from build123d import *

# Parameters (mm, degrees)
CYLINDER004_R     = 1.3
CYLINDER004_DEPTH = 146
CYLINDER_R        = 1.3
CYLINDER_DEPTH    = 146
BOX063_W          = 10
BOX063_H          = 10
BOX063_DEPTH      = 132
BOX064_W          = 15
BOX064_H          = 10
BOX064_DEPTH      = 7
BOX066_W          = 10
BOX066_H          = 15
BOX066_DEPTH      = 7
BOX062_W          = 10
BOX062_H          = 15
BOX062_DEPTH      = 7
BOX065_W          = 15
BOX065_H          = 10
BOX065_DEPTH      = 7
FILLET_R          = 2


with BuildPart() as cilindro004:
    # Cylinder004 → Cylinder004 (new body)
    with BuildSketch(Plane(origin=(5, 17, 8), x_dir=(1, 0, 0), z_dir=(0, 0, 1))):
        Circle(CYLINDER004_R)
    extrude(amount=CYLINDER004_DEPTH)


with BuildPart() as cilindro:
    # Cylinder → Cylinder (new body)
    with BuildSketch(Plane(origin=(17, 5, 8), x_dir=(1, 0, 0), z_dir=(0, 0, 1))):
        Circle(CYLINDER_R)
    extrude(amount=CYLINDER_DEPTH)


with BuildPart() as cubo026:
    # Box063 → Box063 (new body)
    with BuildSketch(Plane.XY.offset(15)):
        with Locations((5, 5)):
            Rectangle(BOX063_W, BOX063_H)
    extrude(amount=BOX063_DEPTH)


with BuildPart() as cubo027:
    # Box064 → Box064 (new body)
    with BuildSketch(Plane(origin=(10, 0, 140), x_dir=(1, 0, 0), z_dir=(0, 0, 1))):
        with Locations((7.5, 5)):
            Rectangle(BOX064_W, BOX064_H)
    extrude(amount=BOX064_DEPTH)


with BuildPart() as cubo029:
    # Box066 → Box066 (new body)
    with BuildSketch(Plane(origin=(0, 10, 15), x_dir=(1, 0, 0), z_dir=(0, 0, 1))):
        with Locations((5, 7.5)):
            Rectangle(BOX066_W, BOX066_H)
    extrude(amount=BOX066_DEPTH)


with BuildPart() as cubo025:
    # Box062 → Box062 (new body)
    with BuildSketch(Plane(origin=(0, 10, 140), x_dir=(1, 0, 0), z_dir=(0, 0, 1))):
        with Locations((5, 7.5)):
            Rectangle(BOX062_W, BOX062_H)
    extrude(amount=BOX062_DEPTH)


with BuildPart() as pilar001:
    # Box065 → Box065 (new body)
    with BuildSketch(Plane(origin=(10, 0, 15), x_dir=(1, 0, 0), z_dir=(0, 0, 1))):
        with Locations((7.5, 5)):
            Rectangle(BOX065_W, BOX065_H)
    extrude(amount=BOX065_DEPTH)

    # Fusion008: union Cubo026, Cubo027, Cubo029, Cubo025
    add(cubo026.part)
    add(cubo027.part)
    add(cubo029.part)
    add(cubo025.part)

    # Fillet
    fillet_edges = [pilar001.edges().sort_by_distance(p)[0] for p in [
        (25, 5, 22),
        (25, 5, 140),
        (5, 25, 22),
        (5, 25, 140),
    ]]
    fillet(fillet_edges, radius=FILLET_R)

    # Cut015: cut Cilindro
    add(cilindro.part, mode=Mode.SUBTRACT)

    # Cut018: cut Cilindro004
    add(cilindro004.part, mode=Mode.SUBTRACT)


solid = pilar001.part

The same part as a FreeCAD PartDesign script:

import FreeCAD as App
import Part
import Sketcher

V = App.Vector


def edges_at(feature, points):
    """Names of the edges that pass closest to the given points."""
    edges = feature.Shape.Edges
    near = lambda p: min(range(len(edges)), key=lambda i: edges[i].distToShape(Part.Vertex(*p))[0])
    return sorted({f"Edge{near(p) + 1}" for p in points})

doc = App.newDocument("Part")
body = doc.addObject("PartDesign::Body", "Body")

sketch1 = body.newObject("Sketcher::SketchObject", "Sketch")
sketch1.AttachmentSupport = (doc.getObject("XY_Plane"), [""])
sketch1.MapMode = "FlatFace"
sketch1.AttachmentOffset = App.Placement(V(0, 0, 8), App.Rotation())
sketch1.addGeometry(Part.Circle(V(5, 17, 0), V(0, 0, 1), 1.3), False)
sketch1.addConstraint(Sketcher.Constraint("Diameter", 0, 2.6))
sketch1.addConstraint(Sketcher.Constraint("DistanceX", -1, 1, 0, 3, 5.0))
sketch1.addConstraint(Sketcher.Constraint("DistanceY", -1, 1, 0, 3, 17.0))
pad1 = body.newObject("PartDesign::Pad", "Pad")
pad1.Profile = sketch1
pad1.Length = 146
body2 = doc.addObject("PartDesign::Body", "Body001")

sketch2 = body2.newObject("Sketcher::SketchObject", "Sketch001")
sketch2.AttachmentSupport = (doc.getObject("XY_Plane001"), [""])
sketch2.MapMode = "FlatFace"
sketch2.AttachmentOffset = App.Placement(V(0, 0, 8), App.Rotation())
sketch2.addGeometry(Part.Circle(V(17, 5, 0), V(0, 0, 1), 1.3), False)
sketch2.addConstraint(Sketcher.Constraint("Diameter", 0, 2.6))
sketch2.addConstraint(Sketcher.Constraint("DistanceX", -1, 1, 0, 3, 17.0))
sketch2.addConstraint(Sketcher.Constraint("DistanceY", -1, 1, 0, 3, 5.0))
pad2 = body2.newObject("PartDesign::Pad", "Pad001")
pad2.Profile = sketch2
pad2.Length = 146
body3 = doc.addObject("PartDesign::Body", "Body002")

sketch3 = body3.newObject("Sketcher::SketchObject", "Sketch002")
sketch3.AttachmentSupport = (doc.getObject("XY_Plane002"), [""])
sketch3.MapMode = "FlatFace"
sketch3.AttachmentOffset = App.Placement(V(0, 0, 15), App.Rotation())
sketch3.addGeometry(Part.LineSegment(V(0, 10, 0), V(0, 0, 0)), False)
sketch3.addGeometry(Part.LineSegment(V(0, 0, 0), V(10, 0, 0)), False)
sketch3.addGeometry(Part.LineSegment(V(10, 0, 0), V(10, 10, 0)), False)
sketch3.addGeometry(Part.LineSegment(V(10, 10, 0), V(0, 10, 0)), False)
sketch3.addConstraint(Sketcher.Constraint("Coincident", 0, 2, 1, 1))
sketch3.addConstraint(Sketcher.Constraint("Coincident", 1, 2, 2, 1))
sketch3.addConstraint(Sketcher.Constraint("Coincident", 2, 2, 3, 1))
sketch3.addConstraint(Sketcher.Constraint("Coincident", 3, 2, 0, 1))
sketch3.addConstraint(Sketcher.Constraint("Vertical", 0))
sketch3.addConstraint(Sketcher.Constraint("Horizontal", 1))
sketch3.addConstraint(Sketcher.Constraint("Vertical", 2))
sketch3.addConstraint(Sketcher.Constraint("Horizontal", 3))
sketch3.addConstraint(Sketcher.Constraint("Coincident", 0, 2, -1, 1))
sketch3.addConstraint(Sketcher.Constraint("Equal", 3, 0))
sketch3.addConstraint(Sketcher.Constraint("DistanceX", 1, 1, 1, 2, 10.0))
pad3 = body3.newObject("PartDesign::Pad", "Pad002")
pad3.Profile = sketch3
pad3.Length = 132
body4 = doc.addObject("PartDesign::Body", "Body003")

sketch4 = body4.newObject("Sketcher::SketchObject", "Sketch003")
sketch4.AttachmentSupport = (doc.getObject("XY_Plane003"), [""])
sketch4.MapMode = "FlatFace"
sketch4.AttachmentOffset = App.Placement(V(0, 0, 140), App.Rotation())
sketch4.addGeometry(Part.LineSegment(V(10, 10, 0), V(10, 0, 0)), False)
sketch4.addGeometry(Part.LineSegment(V(10, 0, 0), V(25, 0, 0)), False)
sketch4.addGeometry(Part.LineSegment(V(25, 0, 0), V(25, 10, 0)), False)
sketch4.addGeometry(Part.LineSegment(V(25, 10, 0), V(10, 10, 0)), False)
sketch4.addConstraint(Sketcher.Constraint("Coincident", 0, 2, 1, 1))
sketch4.addConstraint(Sketcher.Constraint("Coincident", 1, 2, 2, 1))
sketch4.addConstraint(Sketcher.Constraint("Coincident", 2, 2, 3, 1))
sketch4.addConstraint(Sketcher.Constraint("Coincident", 3, 2, 0, 1))
sketch4.addConstraint(Sketcher.Constraint("Vertical", 0))
sketch4.addConstraint(Sketcher.Constraint("Horizontal", 1))
sketch4.addConstraint(Sketcher.Constraint("Vertical", 2))
sketch4.addConstraint(Sketcher.Constraint("Horizontal", 3))
sketch4.addConstraint(Sketcher.Constraint("PointOnObject", 0, 2, -1))
sketch4.addConstraint(Sketcher.Constraint("DistanceX", 1, 1, 1, 2, 15.0))
sketch4.addConstraint(Sketcher.Constraint("DistanceY", 0, 2, 0, 1, 10.0))
sketch4.addConstraint(Sketcher.Constraint("DistanceX", -1, 1, 0, 2, 10.0))
pad4 = body4.newObject("PartDesign::Pad", "Pad003")
pad4.Profile = sketch4
pad4.Length = 7
body5 = doc.addObject("PartDesign::Body", "Body004")

sketch5 = body5.newObject("Sketcher::SketchObject", "Sketch004")
sketch5.AttachmentSupport = (doc.getObject("XY_Plane004"), [""])
sketch5.MapMode = "FlatFace"
sketch5.AttachmentOffset = App.Placement(V(0, 0, 15), App.Rotation())
sketch5.addGeometry(Part.LineSegment(V(0, 25, 0), V(0, 10, 0)), False)
sketch5.addGeometry(Part.LineSegment(V(0, 10, 0), V(10, 10, 0)), False)
sketch5.addGeometry(Part.LineSegment(V(10, 10, 0), V(10, 25, 0)), False)
sketch5.addGeometry(Part.LineSegment(V(10, 25, 0), V(0, 25, 0)), False)
sketch5.addConstraint(Sketcher.Constraint("Coincident", 0, 2, 1, 1))
sketch5.addConstraint(Sketcher.Constraint("Coincident", 1, 2, 2, 1))
sketch5.addConstraint(Sketcher.Constraint("Coincident", 2, 2, 3, 1))
sketch5.addConstraint(Sketcher.Constraint("Coincident", 3, 2, 0, 1))
sketch5.addConstraint(Sketcher.Constraint("Vertical", 0))
sketch5.addConstraint(Sketcher.Constraint("Horizontal", 1))
sketch5.addConstraint(Sketcher.Constraint("Vertical", 2))
sketch5.addConstraint(Sketcher.Constraint("Horizontal", 3))
sketch5.addConstraint(Sketcher.Constraint("PointOnObject", 0, 2, -2))
sketch5.addConstraint(Sketcher.Constraint("DistanceX", 1, 1, 1, 2, 10.0))
sketch5.addConstraint(Sketcher.Constraint("DistanceY", 0, 2, 0, 1, 15.0))
sketch5.addConstraint(Sketcher.Constraint("DistanceY", -1, 1, 0, 2, 10.0))
pad5 = body5.newObject("PartDesign::Pad", "Pad004")
pad5.Profile = sketch5
pad5.Length = 7
body6 = doc.addObject("PartDesign::Body", "Body005")

sketch6 = body6.newObject("Sketcher::SketchObject", "Sketch005")
sketch6.AttachmentSupport = (doc.getObject("XY_Plane005"), [""])
sketch6.MapMode = "FlatFace"
sketch6.AttachmentOffset = App.Placement(V(0, 0, 140), App.Rotation())
sketch6.addGeometry(Part.LineSegment(V(0, 25, 0), V(0, 10, 0)), False)
sketch6.addGeometry(Part.LineSegment(V(0, 10, 0), V(10, 10, 0)), False)
sketch6.addGeometry(Part.LineSegment(V(10, 10, 0), V(10, 25, 0)), False)
sketch6.addGeometry(Part.LineSegment(V(10, 25, 0), V(0, 25, 0)), False)
sketch6.addConstraint(Sketcher.Constraint("Coincident", 0, 2, 1, 1))
sketch6.addConstraint(Sketcher.Constraint("Coincident", 1, 2, 2, 1))
sketch6.addConstraint(Sketcher.Constraint("Coincident", 2, 2, 3, 1))
sketch6.addConstraint(Sketcher.Constraint("Coincident", 3, 2, 0, 1))
sketch6.addConstraint(Sketcher.Constraint("Vertical", 0))
sketch6.addConstraint(Sketcher.Constraint("Horizontal", 1))
sketch6.addConstraint(Sketcher.Constraint("Vertical", 2))
sketch6.addConstraint(Sketcher.Constraint("Horizontal", 3))
sketch6.addConstraint(Sketcher.Constraint("PointOnObject", 0, 2, -2))
sketch6.addConstraint(Sketcher.Constraint("DistanceX", 1, 1, 1, 2, 10.0))
sketch6.addConstraint(Sketcher.Constraint("DistanceY", 0, 2, 0, 1, 15.0))
sketch6.addConstraint(Sketcher.Constraint("DistanceY", -1, 1, 0, 2, 10.0))
pad6 = body6.newObject("PartDesign::Pad", "Pad005")
pad6.Profile = sketch6
pad6.Length = 7
body7 = doc.addObject("PartDesign::Body", "Body006")

sketch7 = body7.newObject("Sketcher::SketchObject", "Sketch006")
sketch7.AttachmentSupport = (doc.getObject("XY_Plane006"), [""])
sketch7.MapMode = "FlatFace"
sketch7.AttachmentOffset = App.Placement(V(0, 0, 15), App.Rotation())
sketch7.addGeometry(Part.LineSegment(V(10, 10, 0), V(10, 0, 0)), False)
sketch7.addGeometry(Part.LineSegment(V(10, 0, 0), V(25, 0, 0)), False)
sketch7.addGeometry(Part.LineSegment(V(25, 0, 0), V(25, 10, 0)), False)
sketch7.addGeometry(Part.LineSegment(V(25, 10, 0), V(10, 10, 0)), False)
sketch7.addConstraint(Sketcher.Constraint("Coincident", 0, 2, 1, 1))
sketch7.addConstraint(Sketcher.Constraint("Coincident", 1, 2, 2, 1))
sketch7.addConstraint(Sketcher.Constraint("Coincident", 2, 2, 3, 1))
sketch7.addConstraint(Sketcher.Constraint("Coincident", 3, 2, 0, 1))
sketch7.addConstraint(Sketcher.Constraint("Vertical", 0))
sketch7.addConstraint(Sketcher.Constraint("Horizontal", 1))
sketch7.addConstraint(Sketcher.Constraint("Vertical", 2))
sketch7.addConstraint(Sketcher.Constraint("Horizontal", 3))
sketch7.addConstraint(Sketcher.Constraint("PointOnObject", 0, 2, -1))
sketch7.addConstraint(Sketcher.Constraint("DistanceX", 1, 1, 1, 2, 15.0))
sketch7.addConstraint(Sketcher.Constraint("DistanceY", 0, 2, 0, 1, 10.0))
sketch7.addConstraint(Sketcher.Constraint("DistanceX", -1, 1, 0, 2, 10.0))
pad7 = body7.newObject("PartDesign::Pad", "Pad006")
pad7.Profile = sketch7
pad7.Length = 7
doc.recompute()

boolean = body7.newObject("PartDesign::Boolean", "Boolean")
boolean.Type = "Fuse"
boolean.addObjects([body3])
doc.recompute()

boolean2 = body7.newObject("PartDesign::Boolean", "Boolean001")
boolean2.Type = "Fuse"
boolean2.addObjects([body4])
doc.recompute()

boolean3 = body7.newObject("PartDesign::Boolean", "Boolean002")
boolean3.Type = "Fuse"
boolean3.addObjects([body5])
doc.recompute()

boolean4 = body7.newObject("PartDesign::Boolean", "Boolean003")
boolean4.Type = "Fuse"
boolean4.addObjects([body6])
doc.recompute()

fillet = body7.newObject("PartDesign::Fillet", "Fillet")
fillet.Base = (boolean4, edges_at(boolean4, [
    (25, 5, 22),
    (25, 5, 140),
    (5, 25, 22),
    (5, 25, 140),
]))
fillet.Radius = 2
doc.recompute()

boolean5 = body7.newObject("PartDesign::Boolean", "Boolean004")
boolean5.Type = "Cut"
boolean5.addObjects([body2])
doc.recompute()

boolean6 = body7.newObject("PartDesign::Boolean", "Boolean005")
boolean6.Type = "Cut"
boolean6.addObjects([body])

doc.recompute()
